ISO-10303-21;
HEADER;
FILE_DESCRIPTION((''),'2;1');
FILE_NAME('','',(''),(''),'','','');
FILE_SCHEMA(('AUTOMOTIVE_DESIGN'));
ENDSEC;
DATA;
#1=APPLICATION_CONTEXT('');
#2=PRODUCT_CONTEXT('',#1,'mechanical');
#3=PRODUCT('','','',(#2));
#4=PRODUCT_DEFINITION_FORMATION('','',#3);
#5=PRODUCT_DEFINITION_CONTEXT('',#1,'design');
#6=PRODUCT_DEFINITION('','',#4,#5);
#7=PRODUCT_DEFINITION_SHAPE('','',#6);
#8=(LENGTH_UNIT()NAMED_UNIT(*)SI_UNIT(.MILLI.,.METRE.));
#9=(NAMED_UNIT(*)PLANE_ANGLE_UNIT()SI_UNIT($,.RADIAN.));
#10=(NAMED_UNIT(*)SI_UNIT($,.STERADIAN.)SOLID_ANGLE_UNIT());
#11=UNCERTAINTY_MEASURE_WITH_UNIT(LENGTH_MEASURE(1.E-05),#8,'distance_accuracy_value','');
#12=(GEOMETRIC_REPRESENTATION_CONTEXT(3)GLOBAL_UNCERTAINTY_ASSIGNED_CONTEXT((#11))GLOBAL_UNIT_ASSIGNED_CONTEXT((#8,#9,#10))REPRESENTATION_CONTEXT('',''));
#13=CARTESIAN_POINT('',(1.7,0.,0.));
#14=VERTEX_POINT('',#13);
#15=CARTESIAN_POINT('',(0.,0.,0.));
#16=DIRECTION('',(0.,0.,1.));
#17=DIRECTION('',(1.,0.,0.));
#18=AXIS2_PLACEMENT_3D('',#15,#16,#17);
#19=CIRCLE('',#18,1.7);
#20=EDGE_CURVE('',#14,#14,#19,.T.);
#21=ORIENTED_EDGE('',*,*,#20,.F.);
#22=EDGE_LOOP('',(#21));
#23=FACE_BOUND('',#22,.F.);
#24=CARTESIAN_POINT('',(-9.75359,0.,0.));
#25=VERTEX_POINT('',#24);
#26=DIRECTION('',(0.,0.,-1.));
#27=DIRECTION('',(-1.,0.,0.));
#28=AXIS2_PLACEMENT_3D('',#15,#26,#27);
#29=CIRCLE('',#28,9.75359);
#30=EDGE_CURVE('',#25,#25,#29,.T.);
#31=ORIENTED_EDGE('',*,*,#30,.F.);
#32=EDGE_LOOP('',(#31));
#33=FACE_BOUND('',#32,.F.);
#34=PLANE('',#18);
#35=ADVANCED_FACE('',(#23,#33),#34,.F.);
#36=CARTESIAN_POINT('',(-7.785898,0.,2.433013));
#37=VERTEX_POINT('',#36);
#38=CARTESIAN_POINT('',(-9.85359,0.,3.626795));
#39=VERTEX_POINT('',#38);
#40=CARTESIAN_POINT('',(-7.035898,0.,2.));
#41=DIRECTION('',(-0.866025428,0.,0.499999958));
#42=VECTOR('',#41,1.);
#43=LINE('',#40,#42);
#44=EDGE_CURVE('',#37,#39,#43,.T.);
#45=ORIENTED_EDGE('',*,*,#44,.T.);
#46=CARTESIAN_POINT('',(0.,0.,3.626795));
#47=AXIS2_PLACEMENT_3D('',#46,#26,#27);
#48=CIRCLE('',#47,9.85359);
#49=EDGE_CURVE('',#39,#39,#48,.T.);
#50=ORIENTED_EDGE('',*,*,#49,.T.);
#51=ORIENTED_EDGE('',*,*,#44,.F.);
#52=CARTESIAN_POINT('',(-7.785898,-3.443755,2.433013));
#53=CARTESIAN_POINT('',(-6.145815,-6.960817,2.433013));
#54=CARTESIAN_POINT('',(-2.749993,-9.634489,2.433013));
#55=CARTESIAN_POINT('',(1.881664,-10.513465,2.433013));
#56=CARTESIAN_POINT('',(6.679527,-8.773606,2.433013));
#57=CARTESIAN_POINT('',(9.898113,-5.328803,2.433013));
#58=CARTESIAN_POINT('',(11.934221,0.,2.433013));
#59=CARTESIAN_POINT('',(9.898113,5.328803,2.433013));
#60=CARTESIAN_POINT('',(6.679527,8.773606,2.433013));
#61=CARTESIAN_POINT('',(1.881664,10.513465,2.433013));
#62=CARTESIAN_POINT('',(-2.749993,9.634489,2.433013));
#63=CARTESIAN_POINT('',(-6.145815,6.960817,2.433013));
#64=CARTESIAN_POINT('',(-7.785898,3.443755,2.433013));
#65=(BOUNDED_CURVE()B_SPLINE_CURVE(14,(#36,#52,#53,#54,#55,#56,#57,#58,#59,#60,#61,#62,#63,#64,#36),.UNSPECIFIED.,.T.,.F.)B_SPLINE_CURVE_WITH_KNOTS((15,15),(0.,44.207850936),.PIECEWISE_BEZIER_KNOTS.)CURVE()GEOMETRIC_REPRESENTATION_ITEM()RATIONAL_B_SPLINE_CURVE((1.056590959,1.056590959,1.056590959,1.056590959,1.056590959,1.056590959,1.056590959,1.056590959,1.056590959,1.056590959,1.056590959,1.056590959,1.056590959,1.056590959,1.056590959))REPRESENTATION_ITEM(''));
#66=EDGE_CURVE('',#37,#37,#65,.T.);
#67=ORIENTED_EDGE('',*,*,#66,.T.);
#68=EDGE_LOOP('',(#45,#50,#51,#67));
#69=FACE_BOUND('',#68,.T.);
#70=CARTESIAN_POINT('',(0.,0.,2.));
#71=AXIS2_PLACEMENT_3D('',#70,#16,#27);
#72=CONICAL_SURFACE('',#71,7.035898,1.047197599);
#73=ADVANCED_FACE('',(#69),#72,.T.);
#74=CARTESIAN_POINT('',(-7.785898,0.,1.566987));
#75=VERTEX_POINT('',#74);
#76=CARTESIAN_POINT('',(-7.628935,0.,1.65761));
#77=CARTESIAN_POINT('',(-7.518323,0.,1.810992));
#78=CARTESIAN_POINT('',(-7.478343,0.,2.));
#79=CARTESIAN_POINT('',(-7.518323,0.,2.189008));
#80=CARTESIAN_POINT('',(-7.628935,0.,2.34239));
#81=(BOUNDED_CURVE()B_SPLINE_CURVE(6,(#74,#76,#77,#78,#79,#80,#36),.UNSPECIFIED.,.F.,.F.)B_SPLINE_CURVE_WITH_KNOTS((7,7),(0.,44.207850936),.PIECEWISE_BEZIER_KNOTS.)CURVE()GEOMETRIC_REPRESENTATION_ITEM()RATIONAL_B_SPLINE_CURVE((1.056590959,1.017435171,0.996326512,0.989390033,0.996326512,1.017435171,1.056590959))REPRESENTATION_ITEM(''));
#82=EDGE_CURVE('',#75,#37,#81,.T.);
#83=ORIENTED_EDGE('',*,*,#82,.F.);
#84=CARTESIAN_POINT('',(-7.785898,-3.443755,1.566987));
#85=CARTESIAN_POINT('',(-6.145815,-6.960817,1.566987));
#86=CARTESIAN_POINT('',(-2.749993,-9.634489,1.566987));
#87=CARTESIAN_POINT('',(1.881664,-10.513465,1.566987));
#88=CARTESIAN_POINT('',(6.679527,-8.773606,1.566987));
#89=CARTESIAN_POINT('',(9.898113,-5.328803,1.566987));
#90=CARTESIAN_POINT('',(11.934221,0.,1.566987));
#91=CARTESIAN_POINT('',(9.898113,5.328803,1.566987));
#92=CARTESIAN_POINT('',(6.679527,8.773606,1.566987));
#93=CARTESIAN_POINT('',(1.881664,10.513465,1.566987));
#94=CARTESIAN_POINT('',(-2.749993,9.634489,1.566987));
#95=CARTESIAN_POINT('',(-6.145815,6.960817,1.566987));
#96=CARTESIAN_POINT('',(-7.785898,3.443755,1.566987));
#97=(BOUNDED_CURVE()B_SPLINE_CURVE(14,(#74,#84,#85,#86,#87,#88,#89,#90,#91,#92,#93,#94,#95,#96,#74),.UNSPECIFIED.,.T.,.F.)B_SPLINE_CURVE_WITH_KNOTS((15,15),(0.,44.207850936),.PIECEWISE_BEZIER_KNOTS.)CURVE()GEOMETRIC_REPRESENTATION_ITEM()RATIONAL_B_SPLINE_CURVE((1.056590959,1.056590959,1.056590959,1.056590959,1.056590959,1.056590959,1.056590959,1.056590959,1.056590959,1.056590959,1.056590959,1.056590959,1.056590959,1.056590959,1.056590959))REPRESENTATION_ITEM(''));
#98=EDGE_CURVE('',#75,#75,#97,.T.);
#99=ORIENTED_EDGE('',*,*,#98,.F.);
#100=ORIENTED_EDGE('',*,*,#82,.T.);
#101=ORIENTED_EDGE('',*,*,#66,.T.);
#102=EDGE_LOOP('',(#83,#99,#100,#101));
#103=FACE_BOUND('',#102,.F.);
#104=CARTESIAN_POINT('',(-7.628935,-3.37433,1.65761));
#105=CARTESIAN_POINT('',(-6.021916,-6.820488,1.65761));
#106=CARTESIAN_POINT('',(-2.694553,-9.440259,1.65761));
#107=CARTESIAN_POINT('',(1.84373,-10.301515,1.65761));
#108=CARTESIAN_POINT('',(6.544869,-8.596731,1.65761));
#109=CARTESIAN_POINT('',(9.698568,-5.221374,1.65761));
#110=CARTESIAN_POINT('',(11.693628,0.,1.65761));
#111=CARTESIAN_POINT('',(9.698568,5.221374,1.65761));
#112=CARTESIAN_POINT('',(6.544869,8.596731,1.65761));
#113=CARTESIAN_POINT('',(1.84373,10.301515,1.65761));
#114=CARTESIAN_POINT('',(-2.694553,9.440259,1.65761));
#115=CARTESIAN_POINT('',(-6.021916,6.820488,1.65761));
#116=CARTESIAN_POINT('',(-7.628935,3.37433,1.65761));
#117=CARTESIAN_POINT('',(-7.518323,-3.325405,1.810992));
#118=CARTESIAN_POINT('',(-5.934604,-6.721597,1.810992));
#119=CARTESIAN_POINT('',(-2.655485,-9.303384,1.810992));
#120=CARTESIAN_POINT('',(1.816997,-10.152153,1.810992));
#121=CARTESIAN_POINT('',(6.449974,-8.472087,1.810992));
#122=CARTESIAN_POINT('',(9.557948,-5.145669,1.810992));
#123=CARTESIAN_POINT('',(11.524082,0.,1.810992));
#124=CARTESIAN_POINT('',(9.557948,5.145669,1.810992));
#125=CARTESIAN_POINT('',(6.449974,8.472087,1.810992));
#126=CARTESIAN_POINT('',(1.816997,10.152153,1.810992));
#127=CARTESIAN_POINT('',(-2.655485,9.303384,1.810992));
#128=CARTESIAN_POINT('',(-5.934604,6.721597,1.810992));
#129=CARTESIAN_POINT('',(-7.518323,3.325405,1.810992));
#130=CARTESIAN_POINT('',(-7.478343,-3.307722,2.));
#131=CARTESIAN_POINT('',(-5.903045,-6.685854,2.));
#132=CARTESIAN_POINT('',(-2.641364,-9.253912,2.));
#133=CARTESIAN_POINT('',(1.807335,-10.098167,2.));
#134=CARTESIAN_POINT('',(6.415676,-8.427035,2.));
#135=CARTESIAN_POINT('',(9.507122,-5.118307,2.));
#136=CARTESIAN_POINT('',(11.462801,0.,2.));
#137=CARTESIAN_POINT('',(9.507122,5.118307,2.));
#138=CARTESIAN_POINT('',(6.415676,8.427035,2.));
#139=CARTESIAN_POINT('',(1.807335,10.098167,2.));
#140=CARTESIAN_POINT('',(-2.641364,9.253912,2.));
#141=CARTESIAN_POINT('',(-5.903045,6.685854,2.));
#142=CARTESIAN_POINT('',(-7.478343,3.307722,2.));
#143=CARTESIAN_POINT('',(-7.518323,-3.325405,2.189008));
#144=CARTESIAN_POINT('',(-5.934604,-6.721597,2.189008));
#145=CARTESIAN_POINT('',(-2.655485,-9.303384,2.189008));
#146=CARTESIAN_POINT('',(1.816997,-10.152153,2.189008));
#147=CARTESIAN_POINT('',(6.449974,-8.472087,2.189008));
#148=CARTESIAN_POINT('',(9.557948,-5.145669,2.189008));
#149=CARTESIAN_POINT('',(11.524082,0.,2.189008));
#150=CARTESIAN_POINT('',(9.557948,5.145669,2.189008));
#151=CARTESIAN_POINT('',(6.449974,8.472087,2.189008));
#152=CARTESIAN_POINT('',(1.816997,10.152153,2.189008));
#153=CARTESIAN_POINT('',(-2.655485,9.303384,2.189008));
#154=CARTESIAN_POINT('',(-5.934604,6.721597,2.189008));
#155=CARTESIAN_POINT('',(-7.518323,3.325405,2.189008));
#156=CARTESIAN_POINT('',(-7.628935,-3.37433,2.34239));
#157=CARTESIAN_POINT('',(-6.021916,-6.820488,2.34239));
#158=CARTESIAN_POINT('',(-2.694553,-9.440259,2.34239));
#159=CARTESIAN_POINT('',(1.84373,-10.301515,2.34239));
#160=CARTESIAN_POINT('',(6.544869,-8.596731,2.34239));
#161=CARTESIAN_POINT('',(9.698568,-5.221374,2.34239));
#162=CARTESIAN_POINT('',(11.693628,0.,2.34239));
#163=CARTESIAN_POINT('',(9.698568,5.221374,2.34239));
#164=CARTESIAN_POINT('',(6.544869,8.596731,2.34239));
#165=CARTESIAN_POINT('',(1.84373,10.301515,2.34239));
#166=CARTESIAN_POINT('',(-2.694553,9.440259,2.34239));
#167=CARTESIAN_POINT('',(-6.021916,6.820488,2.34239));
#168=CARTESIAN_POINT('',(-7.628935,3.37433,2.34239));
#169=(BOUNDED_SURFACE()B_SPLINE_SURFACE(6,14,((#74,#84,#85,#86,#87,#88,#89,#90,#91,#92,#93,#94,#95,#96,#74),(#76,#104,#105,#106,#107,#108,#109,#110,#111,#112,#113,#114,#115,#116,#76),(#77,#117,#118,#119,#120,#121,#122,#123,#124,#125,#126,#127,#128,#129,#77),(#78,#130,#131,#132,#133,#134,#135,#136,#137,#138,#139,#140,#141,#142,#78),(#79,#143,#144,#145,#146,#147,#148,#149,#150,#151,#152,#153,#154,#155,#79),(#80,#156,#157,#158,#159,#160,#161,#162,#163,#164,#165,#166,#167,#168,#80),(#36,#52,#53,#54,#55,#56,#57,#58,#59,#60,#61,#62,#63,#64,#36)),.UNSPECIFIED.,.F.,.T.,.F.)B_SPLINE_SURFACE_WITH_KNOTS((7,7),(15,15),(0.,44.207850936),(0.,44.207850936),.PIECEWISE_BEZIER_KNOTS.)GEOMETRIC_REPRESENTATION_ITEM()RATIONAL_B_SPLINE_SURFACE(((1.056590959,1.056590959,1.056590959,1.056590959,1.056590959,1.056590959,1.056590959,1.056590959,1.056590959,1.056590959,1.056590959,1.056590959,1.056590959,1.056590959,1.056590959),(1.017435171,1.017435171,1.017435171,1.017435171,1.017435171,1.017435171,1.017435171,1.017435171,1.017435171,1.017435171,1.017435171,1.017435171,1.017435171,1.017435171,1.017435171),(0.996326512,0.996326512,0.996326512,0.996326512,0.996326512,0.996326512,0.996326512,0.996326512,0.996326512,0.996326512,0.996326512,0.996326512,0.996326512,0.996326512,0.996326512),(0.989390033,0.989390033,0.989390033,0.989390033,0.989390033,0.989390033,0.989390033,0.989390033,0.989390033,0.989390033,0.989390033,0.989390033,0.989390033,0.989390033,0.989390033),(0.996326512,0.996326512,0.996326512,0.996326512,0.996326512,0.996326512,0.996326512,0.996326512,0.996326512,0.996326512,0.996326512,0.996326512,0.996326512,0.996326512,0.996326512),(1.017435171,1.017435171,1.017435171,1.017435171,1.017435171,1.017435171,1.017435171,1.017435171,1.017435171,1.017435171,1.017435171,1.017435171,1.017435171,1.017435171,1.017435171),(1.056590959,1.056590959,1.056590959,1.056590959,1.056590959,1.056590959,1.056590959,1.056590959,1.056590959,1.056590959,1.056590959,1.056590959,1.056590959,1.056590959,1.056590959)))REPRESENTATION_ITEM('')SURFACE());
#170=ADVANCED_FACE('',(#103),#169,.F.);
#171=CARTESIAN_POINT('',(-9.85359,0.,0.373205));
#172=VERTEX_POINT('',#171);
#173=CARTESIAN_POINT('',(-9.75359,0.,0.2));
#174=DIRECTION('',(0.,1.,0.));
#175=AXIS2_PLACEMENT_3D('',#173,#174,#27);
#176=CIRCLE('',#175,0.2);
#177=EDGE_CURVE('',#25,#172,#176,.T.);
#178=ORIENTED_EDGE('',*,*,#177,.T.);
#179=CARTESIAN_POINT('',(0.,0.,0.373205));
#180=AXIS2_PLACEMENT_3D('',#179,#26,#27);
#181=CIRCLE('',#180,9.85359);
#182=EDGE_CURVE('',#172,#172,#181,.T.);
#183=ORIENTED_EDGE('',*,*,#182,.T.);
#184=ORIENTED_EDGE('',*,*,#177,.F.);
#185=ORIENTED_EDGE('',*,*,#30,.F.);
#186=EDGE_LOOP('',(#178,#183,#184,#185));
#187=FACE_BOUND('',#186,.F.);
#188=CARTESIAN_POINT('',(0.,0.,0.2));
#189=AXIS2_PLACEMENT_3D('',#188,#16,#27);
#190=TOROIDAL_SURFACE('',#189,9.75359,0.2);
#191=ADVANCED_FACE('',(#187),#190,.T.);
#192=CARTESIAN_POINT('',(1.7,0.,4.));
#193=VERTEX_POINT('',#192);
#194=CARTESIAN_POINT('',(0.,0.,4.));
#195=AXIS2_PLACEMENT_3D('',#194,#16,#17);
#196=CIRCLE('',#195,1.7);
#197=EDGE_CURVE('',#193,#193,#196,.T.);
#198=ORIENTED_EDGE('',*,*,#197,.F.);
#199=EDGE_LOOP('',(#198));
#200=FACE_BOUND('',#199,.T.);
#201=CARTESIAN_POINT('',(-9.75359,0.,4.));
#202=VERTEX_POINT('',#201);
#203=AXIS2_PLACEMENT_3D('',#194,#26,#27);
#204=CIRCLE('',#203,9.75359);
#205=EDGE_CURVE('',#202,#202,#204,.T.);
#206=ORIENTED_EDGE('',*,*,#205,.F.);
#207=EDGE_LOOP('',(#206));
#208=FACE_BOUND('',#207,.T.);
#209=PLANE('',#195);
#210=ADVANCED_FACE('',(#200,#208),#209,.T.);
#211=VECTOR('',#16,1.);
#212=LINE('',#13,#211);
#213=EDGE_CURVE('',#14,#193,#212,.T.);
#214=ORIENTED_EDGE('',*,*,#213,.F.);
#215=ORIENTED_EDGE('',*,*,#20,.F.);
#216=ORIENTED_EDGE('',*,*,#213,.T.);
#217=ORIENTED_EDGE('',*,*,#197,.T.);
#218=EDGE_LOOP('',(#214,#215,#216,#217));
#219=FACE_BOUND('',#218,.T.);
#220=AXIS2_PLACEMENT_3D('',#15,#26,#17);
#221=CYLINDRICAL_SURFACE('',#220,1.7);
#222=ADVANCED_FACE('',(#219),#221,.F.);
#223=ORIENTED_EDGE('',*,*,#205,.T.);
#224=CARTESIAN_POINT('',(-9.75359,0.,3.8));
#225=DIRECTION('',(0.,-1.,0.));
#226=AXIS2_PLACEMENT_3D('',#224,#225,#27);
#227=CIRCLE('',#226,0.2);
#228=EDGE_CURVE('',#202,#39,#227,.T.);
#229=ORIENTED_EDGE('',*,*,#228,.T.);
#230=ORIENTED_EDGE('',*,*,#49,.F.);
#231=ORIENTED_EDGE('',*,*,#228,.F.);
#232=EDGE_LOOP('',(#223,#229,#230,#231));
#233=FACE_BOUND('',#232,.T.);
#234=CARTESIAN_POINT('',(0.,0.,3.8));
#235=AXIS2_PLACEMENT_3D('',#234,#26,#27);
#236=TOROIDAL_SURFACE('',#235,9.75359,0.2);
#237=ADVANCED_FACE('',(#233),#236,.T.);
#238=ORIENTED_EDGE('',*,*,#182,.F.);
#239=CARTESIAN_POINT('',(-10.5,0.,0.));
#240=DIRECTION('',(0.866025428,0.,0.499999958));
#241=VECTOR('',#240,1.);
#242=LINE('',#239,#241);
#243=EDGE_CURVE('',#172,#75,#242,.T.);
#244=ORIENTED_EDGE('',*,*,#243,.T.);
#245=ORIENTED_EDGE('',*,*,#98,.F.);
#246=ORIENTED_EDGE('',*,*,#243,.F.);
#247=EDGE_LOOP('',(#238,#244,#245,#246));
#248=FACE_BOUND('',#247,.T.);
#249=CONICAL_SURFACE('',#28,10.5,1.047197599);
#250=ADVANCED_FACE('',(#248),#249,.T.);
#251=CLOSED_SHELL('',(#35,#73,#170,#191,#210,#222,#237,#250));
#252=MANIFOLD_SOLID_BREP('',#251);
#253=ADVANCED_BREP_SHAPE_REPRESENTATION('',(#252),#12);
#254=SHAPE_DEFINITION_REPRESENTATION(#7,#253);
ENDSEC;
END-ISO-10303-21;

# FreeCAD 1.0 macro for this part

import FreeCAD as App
import Part
import Sketcher
from FreeCAD import Vector
Q = App.Units.Quantity


def edges_at(feature, points):
    """Names of the edges that pass closest to the given points."""
    edges = feature.Shape.Edges
    near = lambda p: min(range(len(edges)), key=lambda i: edges[i].distToShape(Part.Vertex(*p))[0])
    return sorted({f"Edge{near(p) + 1}" for p in points})

doc = App.newDocument("Part")
body = doc.addObject("PartDesign::Body", "Body")

# Sketch on XY plane
sketch1 = body.newObject("Sketcher::SketchObject", "Sketch")
sketch1.AttachmentSupport = (doc.getObject("XY_Plane"), [""])
sketch1.MapMode = "FlatFace"
sketch1.addGeometry(Part.Circle(Vector(0, 0, 0), Vector(0, 0, 1), 10.5), False)
sketch1.addGeometry(Part.Circle(Vector(0, 0, 0), Vector(0, 0, 1), 1.7), False)
sketch1.addConstraint(Sketcher.Constraint("Coincident", 0, 3, -1, 1))
sketch1.addConstraint(Sketcher.Constraint("Coincident", 1, 3, -1, 1))
sketch1.addConstraint(Sketcher.Constraint("Diameter", 0, 21.0))
sketch1.addConstraint(Sketcher.Constraint("Diameter", 1, 3.4))
pad1 = body.newObject("PartDesign::Pad", "Pad")
pad1.Profile = sketch1
pad1.Length = 4

# Sketch on XZ plane
sketch2 = body.newObject("Sketcher::SketchObject", "Sketch001")
sketch2.AttachmentSupport = (doc.getObject("XZ_Plane"), [""])
sketch2.MapMode = "FlatFace"
sketch2.addGeometry(Part.LineSegment(Vector(-10.5, 4, 0), Vector(-10.5, 0, 0)), False)
sketch2.addGeometry(Part.LineSegment(Vector(-10.5, 0, 0), Vector(-7, 2, 0)), False)
sketch2.addGeometry(Part.LineSegment(Vector(-7, 2, 0), Vector(-10.5, 4, 0)), False)
sketch2.addConstraint(Sketcher.Constraint("Coincident", 0, 2, 1, 1))
sketch2.addConstraint(Sketcher.Constraint("Coincident", 1, 2, 2, 1))
sketch2.addConstraint(Sketcher.Constraint("Coincident", 2, 2, 0, 1))
sketch2.addConstraint(Sketcher.Constraint("Vertical", 0))
sketch2.addConstraint(Sketcher.Constraint("PointOnObject", 0, 2, -1))
sketch2.addConstraint(Sketcher.Constraint("Equal", 1, 2))
sketch2.addConstraint(Sketcher.Constraint("DistanceY", 0, 2, 0, 1, 4.0))
sketch2.addConstraint(Sketcher.Constraint("Angle", 1, Q("29.999997 deg")))
sketch2.addConstraint(Sketcher.Constraint("DistanceX", 0, 2, -1, 1, 10.5))
groove = body.newObject("PartDesign::Groove", "Groove")
groove.Profile = sketch2
groove.ReferenceAxis = (sketch2, ["V_Axis"])
groove.Angle = 360
doc.recompute()

fillet = body.newObject("PartDesign::Fillet", "Fillet")
fillet.Base = (groove, edges_at(groove, [(10.5, 0, 4), (10.5, 0, 0)]))
fillet.Radius = 0.2
doc.recompute()

fillet2 = body.newObject("PartDesign::Fillet", "Fillet001")
fillet2.Base = (fillet, edges_at(fillet, [(7.036, 0, 2)]))
fillet2.Radius = 0.5

doc.recompute()
